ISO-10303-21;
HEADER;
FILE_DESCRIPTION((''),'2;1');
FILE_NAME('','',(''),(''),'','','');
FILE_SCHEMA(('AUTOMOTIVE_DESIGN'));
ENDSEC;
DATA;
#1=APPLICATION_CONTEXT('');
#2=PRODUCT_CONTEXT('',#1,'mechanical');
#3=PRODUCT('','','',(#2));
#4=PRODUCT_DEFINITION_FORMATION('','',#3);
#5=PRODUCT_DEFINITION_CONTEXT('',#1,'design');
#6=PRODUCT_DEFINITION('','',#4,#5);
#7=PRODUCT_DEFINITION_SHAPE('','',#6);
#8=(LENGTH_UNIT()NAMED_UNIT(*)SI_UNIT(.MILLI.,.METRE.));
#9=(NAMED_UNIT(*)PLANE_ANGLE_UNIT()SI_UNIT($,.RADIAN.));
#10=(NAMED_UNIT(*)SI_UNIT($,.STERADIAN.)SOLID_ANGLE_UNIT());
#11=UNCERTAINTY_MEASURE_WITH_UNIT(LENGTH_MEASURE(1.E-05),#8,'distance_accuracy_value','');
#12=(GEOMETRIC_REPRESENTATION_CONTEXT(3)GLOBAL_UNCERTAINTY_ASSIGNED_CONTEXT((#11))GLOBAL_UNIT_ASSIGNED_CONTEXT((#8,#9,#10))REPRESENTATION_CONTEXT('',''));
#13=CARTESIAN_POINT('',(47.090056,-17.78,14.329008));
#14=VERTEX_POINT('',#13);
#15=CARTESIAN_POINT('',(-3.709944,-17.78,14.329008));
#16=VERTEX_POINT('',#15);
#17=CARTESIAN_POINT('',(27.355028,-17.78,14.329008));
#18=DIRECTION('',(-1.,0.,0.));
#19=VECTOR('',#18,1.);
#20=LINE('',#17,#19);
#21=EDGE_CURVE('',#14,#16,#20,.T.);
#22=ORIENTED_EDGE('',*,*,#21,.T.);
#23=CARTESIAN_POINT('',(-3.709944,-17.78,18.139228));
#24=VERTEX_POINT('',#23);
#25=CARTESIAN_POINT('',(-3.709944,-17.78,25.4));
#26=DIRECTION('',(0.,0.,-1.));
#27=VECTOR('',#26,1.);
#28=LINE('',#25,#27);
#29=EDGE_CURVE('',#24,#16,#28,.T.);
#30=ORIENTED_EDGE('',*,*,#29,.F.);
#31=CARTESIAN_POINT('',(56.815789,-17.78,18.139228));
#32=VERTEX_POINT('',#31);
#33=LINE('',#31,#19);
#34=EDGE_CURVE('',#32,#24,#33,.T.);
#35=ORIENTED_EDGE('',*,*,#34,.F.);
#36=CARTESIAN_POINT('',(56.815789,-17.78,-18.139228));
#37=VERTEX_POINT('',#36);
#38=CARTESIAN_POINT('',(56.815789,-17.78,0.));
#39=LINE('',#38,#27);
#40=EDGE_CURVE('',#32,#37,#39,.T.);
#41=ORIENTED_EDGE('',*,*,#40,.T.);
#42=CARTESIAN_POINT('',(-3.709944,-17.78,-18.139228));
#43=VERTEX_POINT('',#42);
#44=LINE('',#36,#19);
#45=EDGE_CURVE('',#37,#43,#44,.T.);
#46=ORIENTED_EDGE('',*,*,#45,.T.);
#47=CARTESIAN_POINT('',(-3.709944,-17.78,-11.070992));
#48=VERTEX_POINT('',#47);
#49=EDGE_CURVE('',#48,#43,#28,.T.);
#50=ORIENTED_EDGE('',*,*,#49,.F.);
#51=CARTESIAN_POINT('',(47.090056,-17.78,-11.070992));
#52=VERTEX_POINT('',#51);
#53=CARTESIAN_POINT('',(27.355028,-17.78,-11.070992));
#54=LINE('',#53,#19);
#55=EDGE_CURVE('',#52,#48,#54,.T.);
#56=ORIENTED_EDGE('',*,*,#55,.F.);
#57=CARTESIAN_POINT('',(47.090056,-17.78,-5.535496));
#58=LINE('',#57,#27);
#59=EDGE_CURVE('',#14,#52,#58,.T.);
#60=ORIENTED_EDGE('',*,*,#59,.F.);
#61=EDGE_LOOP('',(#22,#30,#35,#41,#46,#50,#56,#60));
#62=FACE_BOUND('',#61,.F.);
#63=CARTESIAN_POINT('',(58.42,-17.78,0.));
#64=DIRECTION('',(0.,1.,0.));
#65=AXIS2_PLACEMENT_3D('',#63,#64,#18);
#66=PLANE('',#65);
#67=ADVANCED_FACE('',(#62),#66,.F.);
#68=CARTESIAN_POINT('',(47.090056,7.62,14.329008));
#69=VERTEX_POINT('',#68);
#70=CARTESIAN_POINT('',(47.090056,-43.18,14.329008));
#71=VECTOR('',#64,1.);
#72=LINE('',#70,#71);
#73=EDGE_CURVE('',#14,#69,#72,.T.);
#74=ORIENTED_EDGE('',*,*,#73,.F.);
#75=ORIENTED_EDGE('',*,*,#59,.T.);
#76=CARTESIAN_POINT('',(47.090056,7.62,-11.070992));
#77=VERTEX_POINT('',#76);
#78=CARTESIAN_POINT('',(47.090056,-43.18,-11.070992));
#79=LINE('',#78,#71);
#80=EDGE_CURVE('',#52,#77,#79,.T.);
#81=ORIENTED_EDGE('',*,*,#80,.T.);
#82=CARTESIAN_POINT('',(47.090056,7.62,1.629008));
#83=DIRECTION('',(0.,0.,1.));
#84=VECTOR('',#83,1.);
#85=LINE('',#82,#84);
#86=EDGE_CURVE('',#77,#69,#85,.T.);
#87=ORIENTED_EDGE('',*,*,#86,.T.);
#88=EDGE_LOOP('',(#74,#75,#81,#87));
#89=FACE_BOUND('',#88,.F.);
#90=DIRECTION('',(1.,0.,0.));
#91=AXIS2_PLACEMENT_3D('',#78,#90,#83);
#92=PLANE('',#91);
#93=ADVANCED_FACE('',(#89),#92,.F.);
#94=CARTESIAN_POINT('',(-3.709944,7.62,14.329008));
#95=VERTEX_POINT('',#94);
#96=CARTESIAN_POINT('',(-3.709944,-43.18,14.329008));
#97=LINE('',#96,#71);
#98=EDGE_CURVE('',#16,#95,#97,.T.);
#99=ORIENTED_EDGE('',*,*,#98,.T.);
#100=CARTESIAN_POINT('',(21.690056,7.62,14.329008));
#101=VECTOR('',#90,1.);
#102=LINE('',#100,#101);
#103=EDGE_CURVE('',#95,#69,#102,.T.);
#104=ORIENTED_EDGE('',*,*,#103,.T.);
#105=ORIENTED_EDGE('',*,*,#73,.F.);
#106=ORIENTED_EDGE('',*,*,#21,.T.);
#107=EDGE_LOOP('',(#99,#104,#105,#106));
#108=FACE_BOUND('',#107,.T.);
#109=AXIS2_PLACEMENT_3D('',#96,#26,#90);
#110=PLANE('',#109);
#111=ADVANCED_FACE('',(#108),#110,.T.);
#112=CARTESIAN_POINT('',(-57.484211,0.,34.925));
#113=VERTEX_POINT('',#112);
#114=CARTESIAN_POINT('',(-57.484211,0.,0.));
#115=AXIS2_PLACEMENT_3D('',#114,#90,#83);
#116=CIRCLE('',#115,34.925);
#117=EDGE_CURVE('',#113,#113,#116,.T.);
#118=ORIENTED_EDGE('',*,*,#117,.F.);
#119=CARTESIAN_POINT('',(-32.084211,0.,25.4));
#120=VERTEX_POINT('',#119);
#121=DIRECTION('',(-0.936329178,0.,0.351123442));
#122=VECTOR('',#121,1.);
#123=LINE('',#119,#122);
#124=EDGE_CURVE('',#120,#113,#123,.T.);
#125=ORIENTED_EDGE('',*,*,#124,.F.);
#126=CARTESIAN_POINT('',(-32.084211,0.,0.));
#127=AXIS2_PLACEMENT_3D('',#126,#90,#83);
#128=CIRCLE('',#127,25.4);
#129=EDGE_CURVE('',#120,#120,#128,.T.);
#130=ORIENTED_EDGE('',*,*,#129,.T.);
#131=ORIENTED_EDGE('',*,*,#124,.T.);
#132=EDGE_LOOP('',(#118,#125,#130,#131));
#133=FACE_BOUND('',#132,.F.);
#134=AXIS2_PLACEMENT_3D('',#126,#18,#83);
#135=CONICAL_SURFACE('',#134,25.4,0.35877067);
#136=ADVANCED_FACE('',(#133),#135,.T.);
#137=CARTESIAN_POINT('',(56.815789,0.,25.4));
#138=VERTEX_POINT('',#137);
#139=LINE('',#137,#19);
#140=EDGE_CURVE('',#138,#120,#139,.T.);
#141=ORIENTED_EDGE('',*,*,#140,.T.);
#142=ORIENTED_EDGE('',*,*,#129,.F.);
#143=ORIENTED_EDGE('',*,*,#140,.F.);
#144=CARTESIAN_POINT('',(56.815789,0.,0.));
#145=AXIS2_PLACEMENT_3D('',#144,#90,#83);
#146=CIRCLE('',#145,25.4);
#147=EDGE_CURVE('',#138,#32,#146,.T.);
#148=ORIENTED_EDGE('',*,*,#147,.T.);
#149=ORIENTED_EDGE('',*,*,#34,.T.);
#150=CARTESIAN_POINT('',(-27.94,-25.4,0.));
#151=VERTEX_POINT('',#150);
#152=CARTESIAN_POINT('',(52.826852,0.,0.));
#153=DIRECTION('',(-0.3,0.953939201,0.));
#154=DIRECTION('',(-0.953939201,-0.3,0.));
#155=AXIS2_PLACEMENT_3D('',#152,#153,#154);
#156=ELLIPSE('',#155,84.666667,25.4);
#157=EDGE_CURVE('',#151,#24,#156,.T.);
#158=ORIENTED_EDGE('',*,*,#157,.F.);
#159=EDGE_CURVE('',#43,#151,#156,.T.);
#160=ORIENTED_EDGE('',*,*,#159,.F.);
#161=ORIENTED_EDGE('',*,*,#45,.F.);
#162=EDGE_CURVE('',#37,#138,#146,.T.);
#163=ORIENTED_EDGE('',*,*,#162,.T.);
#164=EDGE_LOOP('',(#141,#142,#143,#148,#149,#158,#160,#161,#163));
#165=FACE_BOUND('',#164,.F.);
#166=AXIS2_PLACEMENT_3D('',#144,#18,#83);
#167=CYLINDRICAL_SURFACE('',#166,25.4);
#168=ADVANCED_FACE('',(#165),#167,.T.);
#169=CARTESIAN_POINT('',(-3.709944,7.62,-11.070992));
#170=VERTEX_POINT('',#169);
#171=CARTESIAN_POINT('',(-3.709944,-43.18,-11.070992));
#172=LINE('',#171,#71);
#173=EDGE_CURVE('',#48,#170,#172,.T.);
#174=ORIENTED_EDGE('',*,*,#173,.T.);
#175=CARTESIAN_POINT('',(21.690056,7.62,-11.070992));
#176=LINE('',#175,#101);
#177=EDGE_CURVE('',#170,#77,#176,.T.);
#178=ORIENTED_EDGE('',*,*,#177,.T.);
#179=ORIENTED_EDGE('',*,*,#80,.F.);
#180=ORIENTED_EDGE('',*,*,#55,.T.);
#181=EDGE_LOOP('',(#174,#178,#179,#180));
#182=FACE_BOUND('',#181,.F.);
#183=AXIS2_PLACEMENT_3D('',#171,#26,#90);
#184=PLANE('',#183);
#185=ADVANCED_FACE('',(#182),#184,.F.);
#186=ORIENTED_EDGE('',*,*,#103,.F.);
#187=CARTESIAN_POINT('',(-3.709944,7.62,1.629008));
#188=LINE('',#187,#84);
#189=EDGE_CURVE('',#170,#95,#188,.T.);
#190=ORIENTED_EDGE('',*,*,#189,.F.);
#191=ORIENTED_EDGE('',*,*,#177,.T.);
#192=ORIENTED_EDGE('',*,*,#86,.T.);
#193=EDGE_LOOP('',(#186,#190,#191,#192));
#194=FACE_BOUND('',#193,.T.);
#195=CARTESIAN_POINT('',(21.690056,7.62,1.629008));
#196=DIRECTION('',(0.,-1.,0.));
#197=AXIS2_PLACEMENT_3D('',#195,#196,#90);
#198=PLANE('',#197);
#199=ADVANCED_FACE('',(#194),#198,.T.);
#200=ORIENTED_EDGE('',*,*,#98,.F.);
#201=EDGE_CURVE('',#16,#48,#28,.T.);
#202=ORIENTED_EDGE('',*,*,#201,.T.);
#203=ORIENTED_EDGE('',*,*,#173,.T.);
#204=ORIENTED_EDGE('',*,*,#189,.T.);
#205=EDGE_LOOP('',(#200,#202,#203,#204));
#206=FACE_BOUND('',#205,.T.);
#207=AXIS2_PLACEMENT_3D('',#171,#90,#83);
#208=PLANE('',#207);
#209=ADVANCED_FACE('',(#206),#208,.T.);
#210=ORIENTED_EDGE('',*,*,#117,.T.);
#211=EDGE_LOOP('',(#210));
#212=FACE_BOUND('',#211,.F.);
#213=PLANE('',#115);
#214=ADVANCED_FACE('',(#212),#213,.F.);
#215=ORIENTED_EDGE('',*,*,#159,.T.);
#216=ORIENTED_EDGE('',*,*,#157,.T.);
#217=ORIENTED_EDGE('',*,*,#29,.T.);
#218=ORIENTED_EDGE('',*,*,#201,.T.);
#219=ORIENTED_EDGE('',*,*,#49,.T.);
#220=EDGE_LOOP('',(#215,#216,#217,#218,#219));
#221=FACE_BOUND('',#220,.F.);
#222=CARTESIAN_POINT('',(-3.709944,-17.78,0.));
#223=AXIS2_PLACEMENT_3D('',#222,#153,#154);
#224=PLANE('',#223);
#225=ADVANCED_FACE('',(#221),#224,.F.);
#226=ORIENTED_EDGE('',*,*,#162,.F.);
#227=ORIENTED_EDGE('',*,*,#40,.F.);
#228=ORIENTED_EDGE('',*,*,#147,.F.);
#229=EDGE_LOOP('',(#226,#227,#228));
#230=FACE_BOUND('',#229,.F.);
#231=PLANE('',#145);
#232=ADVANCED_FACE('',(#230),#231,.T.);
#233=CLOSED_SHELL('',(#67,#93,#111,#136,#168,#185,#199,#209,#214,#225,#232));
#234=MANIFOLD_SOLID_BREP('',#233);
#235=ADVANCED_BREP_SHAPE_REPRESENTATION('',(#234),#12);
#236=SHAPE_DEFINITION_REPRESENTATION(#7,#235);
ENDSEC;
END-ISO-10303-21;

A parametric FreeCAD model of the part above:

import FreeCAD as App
import Part
import Sketcher
Q = App.Units.Quantity

doc = App.newDocument("Part")
body = doc.addObject("PartDesign::Body", "Body")

# Sketch on XZ plane
sketch1 = doc.addObject("Sketcher::SketchObject", "Sketch")
body.addObject(sketch1)
sketch1.AttachmentSupport = (doc.XZ_Plane, [""])
sketch1.MapMode = "FlatFace"
sketch1.addGeometry([
    Part.LineSegment(App.Vector(57, 25, 0), App.Vector(-32, 25, 0)),  # 0
    Part.LineSegment(App.Vector(-32, 25, 0), App.Vector(-57, 35, 0)),  # 1
    Part.LineSegment(App.Vector(-57, 35, 0), App.Vector(-57, 0, 0)),  # 2
    Part.LineSegment(App.Vector(-57, 0, 0), App.Vector(57, 0, 0)),  # 3
    Part.LineSegment(App.Vector(57, 0, 0), App.Vector(57, 25, 0)),  # 4
], False)
sketch1.addConstraint([
    Sketcher.Constraint("Coincident", 0, 2, 1, 1),
    Sketcher.Constraint("Coincident", 1, 2, 2, 1),
    Sketcher.Constraint("Coincident", 2, 2, 3, 1),
    Sketcher.Constraint("Coincident", 3, 2, 4, 1),
    Sketcher.Constraint("Coincident", 4, 2, 0, 1),
    Sketcher.Constraint("Horizontal", 0),
    Sketcher.Constraint("Vertical", 2),
    Sketcher.Constraint("Horizontal", 3),
    Sketcher.Constraint("Vertical", 4),
    Sketcher.Constraint("PointOnObject", 2, 2, -1),
    Sketcher.Constraint("DistanceY", 4, 1, 4, 2, Q("1 in")),
    Sketcher.Constraint("DistanceX", 0, 2, 0, 1, Q("3.5 in")),
    Sketcher.Constraint("DistanceX", 3, 1, 3, 2, Q("4.5 in")),
    Sketcher.Constraint("DistanceY", 2, 2, 2, 1, Q("1.375 in")),
    Sketcher.Constraint("DistanceX", 0, 2, -1, 1, 32.084211),
])
revolution = doc.addObject("PartDesign::Revolution", "Revolution")
body.addObject(revolution)
revolution.Profile = sketch1
revolution.ReferenceAxis = (sketch1, ["H_Axis"])
revolution.Angle = 360

# Sketch on XY plane
sketch2 = doc.addObject("Sketcher::SketchObject", "Sketch001")
body.addObject(sketch2)
sketch2.AttachmentSupport = (doc.XY_Plane, [""])
sketch2.MapMode = "FlatFace"
sketch2.addGeometry([
    Part.LineSegment(App.Vector(-28, -31, 0), App.Vector(58, -31, 0)),  # 0
    Part.LineSegment(App.Vector(58, -31, 0), App.Vector(58, -18, 0)),  # 1
    Part.LineSegment(App.Vector(58, -18, 0), App.Vector(-4, -18, 0)),  # 2
    Part.LineSegment(App.Vector(-4, -18, 0), App.Vector(-28, -25, 0)),  # 3
    Part.LineSegment(App.Vector(-28, -25, 0), App.Vector(-28, -31, 0)),  # 4
], False)
sketch2.addConstraint([
    Sketcher.Constraint("Coincident", 0, 2, 1, 1),
    Sketcher.Constraint("Coincident", 1, 2, 2, 1),
    Sketcher.Constraint("Coincident", 2, 2, 3, 1),
    Sketcher.Constraint("Coincident", 3, 2, 4, 1),
    Sketcher.Constraint("Coincident", 4, 2, 0, 1),
    Sketcher.Constraint("Horizontal", 0),
    Sketcher.Constraint("Vertical", 1),
    Sketcher.Constraint("Horizontal", 2),
    Sketcher.Constraint("Vertical", 4),
    Sketcher.Constraint("Distance", 3, Q("1 in")),
    Sketcher.Constraint("DistanceX", 0, 1, 0, 2, Q("3.4 in")),
    Sketcher.Constraint("DistanceY", 3, 2, -1, 1, Q("1 in")),
    Sketcher.Constraint("DistanceX", -1, 1, 0, 2, Q("2.3 in")),
    Sketcher.Constraint("DistanceY", 1, 2, -1, 1, Q("0.7 in")),
    Sketcher.Constraint("DistanceY", 1, 1, 1, 2, 13.141739),
])
pocket1 = doc.addObject("PartDesign::Pocket", "Pocket")
body.addObject(pocket1)
pocket1.Profile = sketch2
pocket1.Length = Q("2 in")
pocket1.Midplane = True

# Sketch on XZ plane
sketch3 = doc.addObject("Sketcher::SketchObject", "Sketch002")
body.addObject(sketch3)
sketch3.AttachmentSupport = (doc.XZ_Plane, [""])
sketch3.MapMode = "FlatFace"
sketch3.AttachmentOffset = App.Placement(App.Vector(0, 0, 1.7 * 25.4), App.Rotation())
sketch3.addGeometry([
    Part.LineSegment(App.Vector(-4, 14, 0), App.Vector(-4, -11, 0)),
    Part.LineSegment(App.Vector(-4, -11, 0), App.Vector(47, -11, 0)),
    Part.LineSegment(App.Vector(47, -11, 0), App.Vector(47, 14, 0)),
    Part.LineSegment(App.Vector(47, 14, 0), App.Vector(-4, 14, 0)),
], False)
sketch3.addConstraint([
    Sketcher.Constraint("Coincident", 0, 2, 1, 1),
    Sketcher.Constraint("Coincident", 1, 2, 2, 1),
    Sketcher.Constraint("Coincident", 2, 2, 3, 1),
    Sketcher.Constraint("Coincident", 3, 2, 0, 1),
    Sketcher.Constraint("Vertical", 0),
    Sketcher.Constraint("Horizontal", 1),
    Sketcher.Constraint("Vertical", 2),
    Sketcher.Constraint("Horizontal", 3),
    Sketcher.Constraint("DistanceX", 1, 1, 1, 2, Q("2 in")),
    Sketcher.Constraint("DistanceY", 0, 2, 0, 1, Q("1 in")),
    Sketcher.Constraint("DistanceY", 0, 2, -1, 1, 11.070992),
    Sketcher.Constraint("DistanceX", 0, 2, -1, 1, 3.709944),
])
pocket2 = doc.addObject("PartDesign::Pocket", "Pocket001")
body.addObject(pocket2)
pocket2.Profile = sketch3
pocket2.Length = Q("2 in")

doc.recompute()
